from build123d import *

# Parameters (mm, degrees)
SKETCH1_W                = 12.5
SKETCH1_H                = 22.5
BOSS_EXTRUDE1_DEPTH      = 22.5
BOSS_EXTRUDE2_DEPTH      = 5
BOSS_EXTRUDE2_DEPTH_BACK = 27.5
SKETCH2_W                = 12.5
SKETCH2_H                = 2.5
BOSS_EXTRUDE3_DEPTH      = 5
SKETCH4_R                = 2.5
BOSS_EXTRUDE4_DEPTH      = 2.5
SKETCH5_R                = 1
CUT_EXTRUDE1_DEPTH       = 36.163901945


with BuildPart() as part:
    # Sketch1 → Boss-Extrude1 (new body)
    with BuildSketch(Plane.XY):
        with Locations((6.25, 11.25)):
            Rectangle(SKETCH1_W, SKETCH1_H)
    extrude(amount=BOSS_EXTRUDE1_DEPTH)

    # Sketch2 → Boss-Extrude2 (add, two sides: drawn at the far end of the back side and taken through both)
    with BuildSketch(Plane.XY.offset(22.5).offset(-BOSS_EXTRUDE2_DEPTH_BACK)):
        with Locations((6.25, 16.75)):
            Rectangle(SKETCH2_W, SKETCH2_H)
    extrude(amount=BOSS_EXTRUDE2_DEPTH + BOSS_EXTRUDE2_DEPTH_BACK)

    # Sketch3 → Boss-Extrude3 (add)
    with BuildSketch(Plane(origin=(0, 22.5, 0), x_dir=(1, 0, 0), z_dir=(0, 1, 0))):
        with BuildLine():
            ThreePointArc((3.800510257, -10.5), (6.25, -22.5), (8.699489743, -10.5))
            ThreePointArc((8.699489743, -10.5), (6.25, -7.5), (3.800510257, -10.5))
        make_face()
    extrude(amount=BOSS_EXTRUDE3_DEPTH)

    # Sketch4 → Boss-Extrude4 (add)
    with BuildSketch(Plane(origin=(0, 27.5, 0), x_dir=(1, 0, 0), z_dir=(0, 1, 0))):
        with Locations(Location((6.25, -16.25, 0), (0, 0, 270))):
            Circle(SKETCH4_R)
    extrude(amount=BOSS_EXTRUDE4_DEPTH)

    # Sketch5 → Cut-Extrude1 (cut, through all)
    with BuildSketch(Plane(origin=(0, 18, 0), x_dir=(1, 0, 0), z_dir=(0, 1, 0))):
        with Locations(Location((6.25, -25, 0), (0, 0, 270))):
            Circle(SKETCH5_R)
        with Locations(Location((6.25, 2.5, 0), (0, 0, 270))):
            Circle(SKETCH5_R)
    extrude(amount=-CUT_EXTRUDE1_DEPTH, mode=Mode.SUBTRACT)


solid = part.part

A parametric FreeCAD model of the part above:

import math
import FreeCAD as App
import Part
import Sketcher
from FreeCAD import Vector


def add_polygon(sketch, points):
    """Adds a closed chain of lines whose ends are joined by coincident constraints."""
    first, n = sketch.GeometryCount, len(points)
    for a, b in zip(points, points[1:] + points[:1]):
        sketch.addGeometry(Part.LineSegment(App.Vector(*a, 0), App.Vector(*b, 0)), False)
    for i in range(n):
        sketch.addConstraint(Sketcher.Constraint("Coincident", first + i, 2, first + (i + 1) % n, 1))

doc = App.newDocument("Part")
body = doc.addObject("PartDesign::Body", "Body")

# Sketch on XY plane
sketch1 = doc.addObject("Sketcher::SketchObject", "Sketch")
body.addObject(sketch1)
sketch1.AttachmentSupport = (doc.XY_Plane, [""])
sketch1.MapMode = "FlatFace"
add_polygon(sketch1, [(0, 22), (0, 0), (12, 0), (12, 22)])  # lines 0-3
sketch1.addConstraint(Sketcher.Constraint("Vertical", 0))
sketch1.addConstraint(Sketcher.Constraint("Horizontal", 1))
sketch1.addConstraint(Sketcher.Constraint("Vertical", 2))
sketch1.addConstraint(Sketcher.Constraint("Horizontal", 3))
sketch1.addConstraint(Sketcher.Constraint("Coincident", 0, 2, -1, 1))
sketch1.addConstraint(Sketcher.Constraint("DistanceX", 1, 1, 1, 2, 12.5))
sketch1.addConstraint(Sketcher.Constraint("DistanceY", 0, 2, 0, 1, 22.5))
pad1 = doc.addObject("PartDesign::Pad", "Pad")
body.addObject(pad1)
pad1.Profile = sketch1
pad1.Length = 22.5

# Sketch on XY plane
sketch2 = doc.addObject("Sketcher::SketchObject", "Sketch001")
body.addObject(sketch2)
sketch2.AttachmentSupport = (doc.XY_Plane, [""])
sketch2.MapMode = "FlatFace"
sketch2.AttachmentOffset = App.Placement(Vector(0, 0, 22.5), App.Rotation())
add_polygon(sketch2, [(0, 18), (0, 15.5), (12.5, 15.5), (12.5, 18)])  # lines 0-3
sketch2.addConstraint(Sketcher.Constraint("Vertical", 0))
sketch2.addConstraint(Sketcher.Constraint("Horizontal", 1))
sketch2.addConstraint(Sketcher.Constraint("Vertical", 2))
sketch2.addConstraint(Sketcher.Constraint("Horizontal", 3))
sketch2.addConstraint(Sketcher.Constraint("PointOnObject", 0, 2, -2))
sketch2.addConstraint(Sketcher.Constraint("DistanceX", 1, 1, 1, 2, 12.5))
sketch2.addConstraint(Sketcher.Constraint("DistanceY", 0, 2, 0, 1, 2.5))
sketch2.addConstraint(Sketcher.Constraint("DistanceY", -1, 1, 2, 2, 18.0))
pad2 = doc.addObject("PartDesign::Pad", "Pad001")
body.addObject(pad2)
pad2.Profile = sketch2
pad2.Type = "TwoLengths"
pad2.Length = 5
pad2.Length2 = 27.5

# Sketch on XZ plane
sketch3 = doc.addObject("Sketcher::SketchObject", "Sketch002")
body.addObject(sketch3)
sketch3.AttachmentSupport = (doc.XZ_Plane, [""])
sketch3.MapMode = "FlatFace"
sketch3.AttachmentOffset = App.Placement(Vector(0, 0, -22.5), App.Rotation())
sketch3.addGeometry(Part.ArcOfCircle(Part.Circle(Vector(6.2, 16.2, 0), Vector(0, 0, 1), 6.2), math.radians(-67), math.radians(247)), False)
sketch3.addGeometry(Part.ArcOfCircle(Part.Circle(Vector(6.2, 10, 0), Vector(0, 0, 1), 2.5), math.radians(168), math.radians(372)), False)
sketch3.addConstraint(Sketcher.Constraint("Coincident", 0, 1, 1, 2))
sketch3.addConstraint(Sketcher.Constraint("Coincident", 1, 1, 0, 2))
sketch3.addConstraint(Sketcher.Constraint("Horizontal", 0, 1, 1, 1))
sketch3.addConstraint(Sketcher.Constraint("Radius", 1, 2.5))
sketch3.addConstraint(Sketcher.Constraint("Radius", 0, 6.25))
sketch3.addConstraint(Sketcher.Constraint("DistanceY", -1, 1, 1, 3, 10.0))
sketch3.addConstraint(Sketcher.Constraint("DistanceY", -1, 1, 0, 1, 10.5))
sketch3.addConstraint(Sketcher.Constraint("DistanceX", -1, 1, 0, 3, 6.25))
pad3 = doc.addObject("PartDesign::Pad", "Pad002")
body.addObject(pad3)
pad3.Profile = sketch3
pad3.Length = 5
pad3.Reversed = True

# Sketch on XZ plane
sketch4 = doc.addObject("Sketcher::SketchObject", "Sketch003")
body.addObject(sketch4)
sketch4.AttachmentSupport = (doc.XZ_Plane, [""])
sketch4.MapMode = "FlatFace"
sketch4.AttachmentOffset = App.Placement(Vector(0, 0, -27.5), App.Rotation())
sketch4.addGeometry(Part.Circle(Vector(6.2, 16.2, 0), Vector(0, 0, 1), 2.5), False)
sketch4.addConstraint(Sketcher.Constraint("Diameter", 0, 5.0))
sketch4.addConstraint(Sketcher.Constraint("DistanceX", -1, 1, 0, 3, 6.25))
sketch4.addConstraint(Sketcher.Constraint("DistanceY", -1, 1, 0, 3, 16.25))
pad4 = doc.addObject("PartDesign::Pad", "Pad003")
body.addObject(pad4)
pad4.Profile = sketch4
pad4.Length = 2.5
pad4.Reversed = True

# Sketch on XZ plane
sketch5 = doc.addObject("Sketcher::SketchObject", "Sketch004")
body.addObject(sketch5)
sketch5.AttachmentSupport = (doc.XZ_Plane, [""])
sketch5.MapMode = "FlatFace"
sketch5.AttachmentOffset = App.Placement(Vector(0, 0, -18), App.Rotation())
sketch5.addGeometry(Part.Circle(Vector(6.2, 25, 0), Vector(0, 0, 1), 1), False)
sketch5.addGeometry(Part.Circle(Vector(6.2, -2.5, 0), Vector(0, 0, 1), 1), False)
sketch5.addConstraint(Sketcher.Constraint("Equal", 0, 1))
sketch5.addConstraint(Sketcher.Constraint("Vertical", 0, 3, 1, 3))
sketch5.addConstraint(Sketcher.Constraint("Diameter", 0, 2.0))
sketch5.addConstraint(Sketcher.Constraint("DistanceY", -1, 1, 0, 3, 25.0))
sketch5.addConstraint(Sketcher.Constraint("DistanceY", 1, 3, -1, 1, 2.5))
sketch5.addConstraint(Sketcher.Constraint("DistanceX", -1, 1, 0, 3, 6.25))
pocket1 = doc.addObject("PartDesign::Pocket", "Pocket")
body.addObject(pocket1)
pocket1.Profile = sketch5
pocket1.Type = "ThroughAll"
pocket1.Reversed = True

doc.recompute()
